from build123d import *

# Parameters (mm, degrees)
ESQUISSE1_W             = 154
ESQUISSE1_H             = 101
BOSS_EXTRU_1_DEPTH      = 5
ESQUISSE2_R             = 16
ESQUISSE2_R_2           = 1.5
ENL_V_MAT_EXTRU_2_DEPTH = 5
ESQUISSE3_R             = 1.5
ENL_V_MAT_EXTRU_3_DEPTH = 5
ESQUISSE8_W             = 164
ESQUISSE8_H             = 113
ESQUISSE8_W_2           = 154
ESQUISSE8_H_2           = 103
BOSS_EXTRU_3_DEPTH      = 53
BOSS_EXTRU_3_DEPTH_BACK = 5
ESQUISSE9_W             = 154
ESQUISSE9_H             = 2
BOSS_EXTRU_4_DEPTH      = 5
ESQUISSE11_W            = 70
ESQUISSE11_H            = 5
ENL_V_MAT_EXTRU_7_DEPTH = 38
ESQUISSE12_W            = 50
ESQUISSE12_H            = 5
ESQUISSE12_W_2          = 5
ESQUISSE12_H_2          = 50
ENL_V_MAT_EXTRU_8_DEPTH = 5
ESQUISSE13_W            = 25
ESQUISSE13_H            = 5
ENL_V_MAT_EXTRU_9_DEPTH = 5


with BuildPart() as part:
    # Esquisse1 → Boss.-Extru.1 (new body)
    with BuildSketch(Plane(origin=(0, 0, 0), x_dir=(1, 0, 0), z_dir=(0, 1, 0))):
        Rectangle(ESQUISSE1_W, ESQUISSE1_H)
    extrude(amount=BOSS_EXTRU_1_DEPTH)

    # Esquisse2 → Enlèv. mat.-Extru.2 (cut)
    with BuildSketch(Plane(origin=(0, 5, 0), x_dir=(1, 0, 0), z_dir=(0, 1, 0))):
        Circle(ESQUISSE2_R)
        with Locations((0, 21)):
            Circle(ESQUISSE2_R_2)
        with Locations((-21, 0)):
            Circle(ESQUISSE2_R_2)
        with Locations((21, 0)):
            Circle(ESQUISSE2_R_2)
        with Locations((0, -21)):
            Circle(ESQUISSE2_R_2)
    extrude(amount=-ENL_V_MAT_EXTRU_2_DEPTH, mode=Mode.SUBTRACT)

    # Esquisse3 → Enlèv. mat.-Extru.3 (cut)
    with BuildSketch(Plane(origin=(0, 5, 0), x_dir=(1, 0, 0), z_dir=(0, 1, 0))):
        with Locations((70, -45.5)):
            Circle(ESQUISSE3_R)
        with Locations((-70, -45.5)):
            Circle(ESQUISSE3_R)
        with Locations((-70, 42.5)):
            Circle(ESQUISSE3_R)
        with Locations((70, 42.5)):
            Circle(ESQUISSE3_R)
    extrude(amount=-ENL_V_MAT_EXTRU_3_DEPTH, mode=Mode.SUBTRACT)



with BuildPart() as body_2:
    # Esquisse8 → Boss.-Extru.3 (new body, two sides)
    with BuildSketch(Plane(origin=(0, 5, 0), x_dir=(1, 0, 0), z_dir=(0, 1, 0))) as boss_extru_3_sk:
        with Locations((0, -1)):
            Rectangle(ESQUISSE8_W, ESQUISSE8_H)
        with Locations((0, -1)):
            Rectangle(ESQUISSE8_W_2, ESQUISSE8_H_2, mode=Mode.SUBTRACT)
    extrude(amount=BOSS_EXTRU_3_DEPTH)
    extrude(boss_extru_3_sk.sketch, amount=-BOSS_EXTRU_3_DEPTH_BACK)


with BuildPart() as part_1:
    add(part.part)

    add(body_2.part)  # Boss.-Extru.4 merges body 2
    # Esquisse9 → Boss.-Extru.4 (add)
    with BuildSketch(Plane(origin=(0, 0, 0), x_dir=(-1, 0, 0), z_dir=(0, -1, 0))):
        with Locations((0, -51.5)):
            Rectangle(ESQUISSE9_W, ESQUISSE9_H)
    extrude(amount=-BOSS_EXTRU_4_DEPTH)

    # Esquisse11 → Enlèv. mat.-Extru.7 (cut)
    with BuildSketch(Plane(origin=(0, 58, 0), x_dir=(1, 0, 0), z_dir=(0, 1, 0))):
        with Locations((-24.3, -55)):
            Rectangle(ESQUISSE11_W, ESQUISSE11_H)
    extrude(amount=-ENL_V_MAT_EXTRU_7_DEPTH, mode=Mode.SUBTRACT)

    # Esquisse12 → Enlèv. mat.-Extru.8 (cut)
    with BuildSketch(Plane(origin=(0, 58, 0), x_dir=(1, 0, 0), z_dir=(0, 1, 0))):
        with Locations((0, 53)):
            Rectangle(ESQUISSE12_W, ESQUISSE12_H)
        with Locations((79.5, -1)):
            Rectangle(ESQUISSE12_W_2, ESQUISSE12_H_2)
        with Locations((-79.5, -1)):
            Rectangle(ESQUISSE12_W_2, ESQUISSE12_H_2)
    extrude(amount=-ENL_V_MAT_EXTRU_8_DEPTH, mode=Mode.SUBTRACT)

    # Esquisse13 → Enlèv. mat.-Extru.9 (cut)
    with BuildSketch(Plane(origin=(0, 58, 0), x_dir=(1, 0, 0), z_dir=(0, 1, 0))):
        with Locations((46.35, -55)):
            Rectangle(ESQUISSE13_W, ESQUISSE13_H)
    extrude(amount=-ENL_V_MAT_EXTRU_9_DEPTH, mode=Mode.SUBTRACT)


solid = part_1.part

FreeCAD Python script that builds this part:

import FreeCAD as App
import Part
import Sketcher

V = App.Vector

doc = App.newDocument("Part")
params = doc.addObject("Spreadsheet::Sheet", "Params")
for row, (alias, value) in enumerate([
    ("sketch1_width", "154 mm"),
    ("sketch1_height", "101 mm"),
    ("pad1_length", "5 mm"),
    ("sketch2_diameter", "32 mm"),
    ("sketch2_diameter2", "3 mm"),
    ("pocket1_length", "5 mm"),
    ("sketch3_diameter", "3 mm"),
    ("pocket2_length", "5 mm"),
    ("sketch4_width", "164 mm"),
    ("sketch4_width2", "154 mm"),
    ("sketch4_height", "113 mm"),
    ("sketch4_height2", "103 mm"),
    ("pad2_length", "53 mm"),
    ("pad2_length2", "5 mm"),
    ("sketch5_width", "154 mm"),
    ("sketch5_height", "2 mm"),
    ("pad3_length", "5 mm"),
    ("sketch6_width", "70 mm"),
    ("sketch6_height", "5 mm"),
    ("pocket3_length", "38 mm"),
    ("sketch7_width", "50 mm"),
    ("sketch7_width2", "5 mm"),
    ("pocket4_length", "5 mm"),
    ("sketch8_width", "25 mm"),
    ("sketch8_height", "5 mm"),
    ("pocket5_length", "5 mm"),
], start=1):
    params.set(f"A{row}", alias)
    params.set(f"B{row}", "=" + value)
    params.setAlias(f"B{row}", alias)

body = doc.addObject("PartDesign::Body", "Body")

sketch1 = doc.addObject("Sketcher::SketchObject", "Sketch")
body.addObject(sketch1)
sketch1.AttachmentSupport = (doc.XZ_Plane, [""])
sketch1.MapMode = "FlatFace"
sketch1.addGeometry([
    Part.LineSegment(V(-77, -50, 0), V(-77, 50, 0)),
    Part.LineSegment(V(-77, 50, 0), V(77, 50, 0)),
    Part.LineSegment(V(77, 50, 0), V(77, -50, 0)),
    Part.LineSegment(V(77, -50, 0), V(-77, -50, 0)),
], False)
sketch1.addConstraint([
    Sketcher.Constraint("Coincident", 0, 2, 1, 1),
    Sketcher.Constraint("Coincident", 1, 2, 2, 1),
    Sketcher.Constraint("Coincident", 2, 2, 3, 1),
    Sketcher.Constraint("Coincident", 3, 2, 0, 1),
    Sketcher.Constraint("Vertical", 0),
    Sketcher.Constraint("Horizontal", 1),
    Sketcher.Constraint("Vertical", 2),
    Sketcher.Constraint("Horizontal", 3),
    Sketcher.Constraint("Symmetric", 0, 2, 2, 2, -1, 1),
    Sketcher.Constraint("DistanceX", 1, 1, 1, 2, 154.0),
    Sketcher.Constraint("DistanceY", 0, 1, 0, 2, 101.0),
])
sketch1.setExpression("Constraints[9]", "Params.sketch1_width")
sketch1.setExpression("Constraints[10]", "Params.sketch1_height")
pad1 = doc.addObject("PartDesign::Pad", "Pad")
body.addObject(pad1)
pad1.Profile = sketch1
pad1.setExpression("Length", "Params.pad1_length")
pad1.Reversed = True

sketch2 = doc.addObject("Sketcher::SketchObject", "Sketch001")
body.addObject(sketch2)
sketch2.AttachmentSupport = (doc.XZ_Plane, [""])
sketch2.MapMode = "FlatFace"
sketch2.AttachmentOffset = App.Placement(V(0, 0, -5), App.Rotation())
sketch2.addGeometry([
    Part.Circle(V(0, 0, 0), V(0, 0, 1), 16),
    Part.Circle(V(0, -21, 0), V(0, 0, 1), 1.5),
    Part.Circle(V(-21, 0, 0), V(0, 0, 1), 1.5),
    Part.Circle(V(21, 0, 0), V(0, 0, 1), 1.5),
    Part.Circle(V(0, 21, 0), V(0, 0, 1), 1.5),
], False)
sketch2.addConstraint([
    Sketcher.Constraint("Coincident", 0, 3, -1, 1),
    Sketcher.Constraint("Equal", 1, 2),
    Sketcher.Constraint("Equal", 2, 3),
    Sketcher.Constraint("Equal", 3, 4),
    Sketcher.Constraint("Symmetric", 2, 3, 3, 3, -1, 1),
    Sketcher.Constraint("Symmetric", 1, 3, 4, 3, -1, 1),
    Sketcher.Constraint("PointOnObject", 1, 3, -2),
    Sketcher.Constraint("PointOnObject", 2, 3, -1),
    Sketcher.Constraint("Diameter", 0, 32.0),
    Sketcher.Constraint("Diameter", 1, 3.0),
    Sketcher.Constraint("DistanceY", 1, 3, -1, 1, 21.0),
    Sketcher.Constraint("DistanceX", 2, 3, -1, 1, 21.0),
])
sketch2.setExpression("Constraints[8]", "Params.sketch2_diameter")
sketch2.setExpression("Constraints[9]", "Params.sketch2_diameter2")
pocket1 = doc.addObject("PartDesign::Pocket", "Pocket")
body.addObject(pocket1)
pocket1.Profile = sketch2
pocket1.setExpression("Length", "Params.pocket1_length")
pocket1.Reversed = True

sketch3 = doc.addObject("Sketcher::SketchObject", "Sketch002")
body.addObject(sketch3)
sketch3.AttachmentSupport = (doc.XZ_Plane, [""])
sketch3.MapMode = "FlatFace"
sketch3.AttachmentOffset = App.Placement(V(0, 0, -5), App.Rotation())
sketch3.addGeometry([
    Part.Circle(V(70, 45.5, 0), V(0, 0, 1), 1.5),
    Part.Circle(V(-70, 45.5, 0), V(0, 0, 1), 1.5),
    Part.Circle(V(-70, -42.5, 0), V(0, 0, 1), 1.5),
    Part.Circle(V(70, -42.5, 0), V(0, 0, 1), 1.5),
], False)
sketch3.addConstraint([
    Sketcher.Constraint("Equal", 0, 1),
    Sketcher.Constraint("Equal", 1, 2),
    Sketcher.Constraint("Equal", 2, 3),
    Sketcher.Constraint("Symmetric", 0, 3, 1, 3, -2),
    Sketcher.Constraint("Symmetric", 2, 3, 3, 3, -2),
    Sketcher.Constraint("Vertical", 1, 3, 2, 3),
    Sketcher.Constraint("Diameter", 0, 3.0),
    Sketcher.Constraint("DistanceX", -1, 1, 0, 3, 70.0),
    Sketcher.Constraint("DistanceY", 2, 3, 1, 3, 88.0),
    Sketcher.Constraint("DistanceY", -1, 1, 0, 3, 45.5),
])
sketch3.setExpression("Constraints[6]", "Params.sketch3_diameter")
pocket2 = doc.addObject("PartDesign::Pocket", "Pocket001")
body.addObject(pocket2)
pocket2.Profile = sketch3
pocket2.setExpression("Length", "Params.pocket2_length")
pocket2.Reversed = True
body2 = doc.addObject("PartDesign::Body", "Body001")

sketch4 = doc.addObject("Sketcher::SketchObject", "Sketch003")
body2.addObject(sketch4)
sketch4.AttachmentSupport = (doc.getObject("XZ_Plane001"), [""])
sketch4.MapMode = "FlatFace"
sketch4.AttachmentOffset = App.Placement(V(0, 0, -5), App.Rotation())
sketch4.addGeometry([
    Part.LineSegment(V(-82, -56, 0), V(-82, 58, 0)),
    Part.LineSegment(V(-82, 58, 0), V(82, 58, 0)),
    Part.LineSegment(V(82, 58, 0), V(82, -56, 0)),
    Part.LineSegment(V(82, -56, 0), V(-82, -56, 0)),
    Part.LineSegment(V(77, 52, 0), V(-77, 52, 0)),
    Part.LineSegment(V(-77, 52, 0), V(-77, -50, 0)),
    Part.LineSegment(V(-77, -50, 0), V(77, -50, 0)),
    Part.LineSegment(V(77, -50, 0), V(77, 52, 0)),
], False)
sketch4.addConstraint([
    Sketcher.Constraint("Coincident", 0, 2, 1, 1),
    Sketcher.Constraint("Coincident", 1, 2, 2, 1),
    Sketcher.Constraint("Coincident", 2, 2, 3, 1),
    Sketcher.Constraint("Coincident", 3, 2, 0, 1),
    Sketcher.Constraint("Coincident", 4, 2, 5, 1),
    Sketcher.Constraint("Coincident", 5, 2, 6, 1),
    Sketcher.Constraint("Coincident", 6, 2, 7, 1),
    Sketcher.Constraint("Coincident", 7, 2, 4, 1),
    Sketcher.Constraint("Vertical", 0),
    Sketcher.Constraint("Horizontal", 1),
    Sketcher.Constraint("Vertical", 2),
    Sketcher.Constraint("Horizontal", 3),
    Sketcher.Constraint("Horizontal", 4),
    Sketcher.Constraint("Vertical", 5),
    Sketcher.Constraint("Horizontal", 6),
    Sketcher.Constraint("Vertical", 7),
    Sketcher.Constraint("DistanceX", 1, 1, 1, 2, 164.0),
    Sketcher.Constraint("DistanceX", 4, 2, 4, 1, 154.0),
    Sketcher.Constraint("DistanceY", 0, 1, 0, 2, 113.0),
    Sketcher.Constraint("DistanceY", 5, 2, 5, 1, 103.0),
    Sketcher.Constraint("DistanceX", 0, 2, -1, 1, 82.0),
    Sketcher.Constraint("DistanceX", 4, 2, -1, 1, 77.0),
    Sketcher.Constraint("DistanceY", 4, 2, 0, 2, 5.0),
    Sketcher.Constraint("DistanceY", -1, 1, 0, 2, 57.5),
])
sketch4.setExpression("Constraints[16]", "Params.sketch4_width")
sketch4.setExpression("Constraints[17]", "Params.sketch4_width2")
sketch4.setExpression("Constraints[18]", "Params.sketch4_height")
sketch4.setExpression("Constraints[19]", "Params.sketch4_height2")
pad2 = doc.addObject("PartDesign::Pad", "Pad001")
body2.addObject(pad2)
pad2.Profile = sketch4
pad2.Type = "TwoLengths"
pad2.setExpression("Length", "Params.pad2_length")
pad2.setExpression("Length2", "Params.pad2_length2")
pad2.Reversed = True
doc.recompute()

boolean = doc.addObject("PartDesign::Boolean", "Boolean")
body.addObject(boolean)
boolean.Type = "Fuse"
boolean.addObjects([body2])

sketch5 = doc.addObject("Sketcher::SketchObject", "Sketch004")
body.addObject(sketch5)
sketch5.AttachmentSupport = (doc.XZ_Plane, [""])
sketch5.MapMode = "FlatFace"
sketch5.addGeometry([
    Part.LineSegment(V(77, 50.5, 0), V(77, 52.5, 0)),
    Part.LineSegment(V(77, 52.5, 0), V(-77, 52.5, 0)),
    Part.LineSegment(V(-77, 52.5, 0), V(-77, 50.5, 0)),
    Part.LineSegment(V(-77, 50.5, 0), V(77, 50.5, 0)),
], False)
sketch5.addConstraint([
    Sketcher.Constraint("Coincident", 0, 2, 1, 1),
    Sketcher.Constraint("Coincident", 1, 2, 2, 1),
    Sketcher.Constraint("Coincident", 2, 2, 3, 1),
    Sketcher.Constraint("Coincident", 3, 2, 0, 1),
    Sketcher.Constraint("Vertical", 0),
    Sketcher.Constraint("Horizontal", 1),
    Sketcher.Constraint("Vertical", 2),
    Sketcher.Constraint("Horizontal", 3),
    Sketcher.Constraint("DistanceX", 1, 2, 1, 1, 154.0),
    Sketcher.Constraint("DistanceY", 0, 1, 0, 2, 2.0),
    Sketcher.Constraint("DistanceX", -1, 1, 0, 2, 77.0),
    Sketcher.Constraint("DistanceY", -1, 1, 0, 2, 52.5),
])
sketch5.setExpression("Constraints[8]", "Params.sketch5_width")
sketch5.setExpression("Constraints[9]", "Params.sketch5_height")
pad3 = doc.addObject("PartDesign::Pad", "Pad002")
body.addObject(pad3)
pad3.Profile = sketch5
pad3.setExpression("Length", "Params.pad3_length")
pad3.Reversed = True

sketch6 = doc.addObject("Sketcher::SketchObject", "Sketch005")
body.addObject(sketch6)
sketch6.AttachmentSupport = (doc.XZ_Plane, [""])
sketch6.MapMode = "FlatFace"
sketch6.AttachmentOffset = App.Placement(V(0, 0, -58), App.Rotation())
sketch6.addGeometry([
    Part.LineSegment(V(-59, 52, 0), V(-59, 58, 0)),
    Part.LineSegment(V(-59, 58, 0), V(11, 58, 0)),
    Part.LineSegment(V(11, 58, 0), V(11, 52, 0)),
    Part.LineSegment(V(11, 52, 0), V(-59, 52, 0)),
], False)
sketch6.addConstraint([
    Sketcher.Constraint("Coincident", 0, 2, 1, 1),
    Sketcher.Constraint("Coincident", 1, 2, 2, 1),
    Sketcher.Constraint("Coincident", 2, 2, 3, 1),
    Sketcher.Constraint("Coincident", 3, 2, 0, 1),
    Sketcher.Constraint("Vertical", 0),
    Sketcher.Constraint("Horizontal", 1),
    Sketcher.Constraint("Vertical", 2),
    Sketcher.Constraint("Horizontal", 3),
    Sketcher.Constraint("DistanceX", 1, 1, 1, 2, 70.0),
    Sketcher.Constraint("DistanceY", 0, 1, 0, 2, 5.0),
    Sketcher.Constraint("DistanceX", 0, 2, -1, 1, 59.3),
    Sketcher.Constraint("DistanceY", -1, 1, 0, 2, 57.5),
])
sketch6.setExpression("Constraints[8]", "Params.sketch6_width")
sketch6.setExpression("Constraints[9]", "Params.sketch6_height")
pocket3 = doc.addObject("PartDesign::Pocket", "Pocket002")
body.addObject(pocket3)
pocket3.Profile = sketch6
pocket3.setExpression("Length", "Params.pocket3_length")
pocket3.Reversed = True

sketch7 = doc.addObject("Sketcher::SketchObject", "Sketch006")
body.addObject(sketch7)
sketch7.AttachmentSupport = (doc.XZ_Plane, [""])
sketch7.MapMode = "FlatFace"
sketch7.AttachmentOffset = App.Placement(V(0, 0, -58), App.Rotation())
sketch7.addGeometry([
    Part.LineSegment(V(-25, -56, 0), V(-25, -50, 0)),
    Part.LineSegment(V(-25, -50, 0), V(25, -50, 0)),
    Part.LineSegment(V(25, -50, 0), V(25, -56, 0)),
    Part.LineSegment(V(25, -56, 0), V(-25, -56, 0)),
    Part.LineSegment(V(77, -24, 0), V(77, 26, 0)),
    Part.LineSegment(V(77, 26, 0), V(82, 26, 0)),
    Part.LineSegment(V(82, 26, 0), V(82, -24, 0)),
    Part.LineSegment(V(82, -24, 0), V(77, -24, 0)),
    Part.LineSegment(V(-82, -24, 0), V(-82, 26, 0)),
    Part.LineSegment(V(-82, 26, 0), V(-77, 26, 0)),
    Part.LineSegment(V(-77, 26, 0), V(-77, -24, 0)),
    Part.LineSegment(V(-77, -24, 0), V(-82, -24, 0)),
], False)
sketch7.addConstraint([
    Sketcher.Constraint("Coincident", 0, 2, 1, 1),
    Sketcher.Constraint("Coincident", 1, 2, 2, 1),
    Sketcher.Constraint("Coincident", 2, 2, 3, 1),
    Sketcher.Constraint("Coincident", 3, 2, 0, 1),
    Sketcher.Constraint("Coincident", 4, 2, 5, 1),
    Sketcher.Constraint("Coincident", 5, 2, 6, 1),
    Sketcher.Constraint("Coincident", 6, 2, 7, 1),
    Sketcher.Constraint("Coincident", 7, 2, 4, 1),
    Sketcher.Constraint("Coincident", 8, 2, 9, 1),
    Sketcher.Constraint("Coincident", 9, 2, 10, 1),
    Sketcher.Constraint("Coincident", 10, 2, 11, 1),
    Sketcher.Constraint("Coincident", 11, 2, 8, 1),
    Sketcher.Constraint("Vertical", 0),
    Sketcher.Constraint("Horizontal", 1),
    Sketcher.Constraint("Vertical", 2),
    Sketcher.Constraint("Horizontal", 3),
    Sketcher.Constraint("Vertical", 4),
    Sketcher.Constraint("Horizontal", 5),
    Sketcher.Constraint("Vertical", 6),
    Sketcher.Constraint("Horizontal", 7),
    Sketcher.Constraint("Vertical", 8),
    Sketcher.Constraint("Horizontal", 9),
    Sketcher.Constraint("Vertical", 10),
    Sketcher.Constraint("Horizontal", 11),
    Sketcher.Constraint("Symmetric", 5, 2, 8, 2, -2),
    Sketcher.Constraint("Symmetric", 7, 2, 10, 2, -2),
    Sketcher.Constraint("Equal", 11, 0),
    Sketcher.Constraint("Equal", 3, 4),
    Sketcher.Constraint("DistanceX", 1, 1, 1, 2, 50.0),
    Sketcher.Constraint("DistanceX", 5, 1, 5, 2, 5.0),
    Sketcher.Constraint("DistanceX", 0, 2, -1, 1, 25.0),
    Sketcher.Constraint("DistanceX", -1, 1, 4, 2, 77.0),
    Sketcher.Constraint("DistanceY", -1, 1, 4, 2, 26.0),
    Sketcher.Constraint("DistanceY", 0, 2, -1, 1, 50.5),
])
sketch7.setExpression("Constraints[28]", "Params.sketch7_width")
sketch7.setExpression("Constraints[29]", "Params.sketch7_width2")
pocket4 = doc.addObject("PartDesign::Pocket", "Pocket003")
body.addObject(pocket4)
pocket4.Profile = sketch7
pocket4.setExpression("Length", "Params.pocket4_length")
pocket4.Reversed = True

sketch8 = doc.addObject("Sketcher::SketchObject", "Sketch007")
body.addObject(sketch8)
sketch8.AttachmentSupport = (doc.XZ_Plane, [""])
sketch8.MapMode = "FlatFace"
sketch8.AttachmentOffset = App.Placement(V(0, 0, -58), App.Rotation())
sketch8.addGeometry([
    Part.LineSegment(V(34, 52, 0), V(34, 58, 0)),
    Part.LineSegment(V(34, 58, 0), V(59, 58, 0)),
    Part.LineSegment(V(59, 58, 0), V(59, 52, 0)),
    Part.LineSegment(V(59, 52, 0), V(34, 52, 0)),
], False)
sketch8.addConstraint([
    Sketcher.Constraint("Coincident", 0, 2, 1, 1),
    Sketcher.Constraint("Coincident", 1, 2, 2, 1),
    Sketcher.Constraint("Coincident", 2, 2, 3, 1),
    Sketcher.Constraint("Coincident", 3, 2, 0, 1),
    Sketcher.Constraint("Vertical", 0),
    Sketcher.Constraint("Horizontal", 1),
    Sketcher.Constraint("Vertical", 2),
    Sketcher.Constraint("Horizontal", 3),
    Sketcher.Constraint("DistanceX", 1, 1, 1, 2, 25.0),
    Sketcher.Constraint("DistanceY", 0, 1, 0, 2, 5.0),
    Sketcher.Constraint("DistanceY", -1, 1, 0, 2, 57.5),
    Sketcher.Constraint("DistanceX", -1, 1, 0, 2, 33.85),
])
sketch8.setExpression("Constraints[8]", "Params.sketch8_width")
sketch8.setExpression("Constraints[9]", "Params.sketch8_height")
pocket5 = doc.addObject("PartDesign::Pocket", "Pocket004")
body.addObject(pocket5)
pocket5.Profile = sketch8
pocket5.setExpression("Length", "Params.pocket5_length")
pocket5.Reversed = True

doc.recompute()
